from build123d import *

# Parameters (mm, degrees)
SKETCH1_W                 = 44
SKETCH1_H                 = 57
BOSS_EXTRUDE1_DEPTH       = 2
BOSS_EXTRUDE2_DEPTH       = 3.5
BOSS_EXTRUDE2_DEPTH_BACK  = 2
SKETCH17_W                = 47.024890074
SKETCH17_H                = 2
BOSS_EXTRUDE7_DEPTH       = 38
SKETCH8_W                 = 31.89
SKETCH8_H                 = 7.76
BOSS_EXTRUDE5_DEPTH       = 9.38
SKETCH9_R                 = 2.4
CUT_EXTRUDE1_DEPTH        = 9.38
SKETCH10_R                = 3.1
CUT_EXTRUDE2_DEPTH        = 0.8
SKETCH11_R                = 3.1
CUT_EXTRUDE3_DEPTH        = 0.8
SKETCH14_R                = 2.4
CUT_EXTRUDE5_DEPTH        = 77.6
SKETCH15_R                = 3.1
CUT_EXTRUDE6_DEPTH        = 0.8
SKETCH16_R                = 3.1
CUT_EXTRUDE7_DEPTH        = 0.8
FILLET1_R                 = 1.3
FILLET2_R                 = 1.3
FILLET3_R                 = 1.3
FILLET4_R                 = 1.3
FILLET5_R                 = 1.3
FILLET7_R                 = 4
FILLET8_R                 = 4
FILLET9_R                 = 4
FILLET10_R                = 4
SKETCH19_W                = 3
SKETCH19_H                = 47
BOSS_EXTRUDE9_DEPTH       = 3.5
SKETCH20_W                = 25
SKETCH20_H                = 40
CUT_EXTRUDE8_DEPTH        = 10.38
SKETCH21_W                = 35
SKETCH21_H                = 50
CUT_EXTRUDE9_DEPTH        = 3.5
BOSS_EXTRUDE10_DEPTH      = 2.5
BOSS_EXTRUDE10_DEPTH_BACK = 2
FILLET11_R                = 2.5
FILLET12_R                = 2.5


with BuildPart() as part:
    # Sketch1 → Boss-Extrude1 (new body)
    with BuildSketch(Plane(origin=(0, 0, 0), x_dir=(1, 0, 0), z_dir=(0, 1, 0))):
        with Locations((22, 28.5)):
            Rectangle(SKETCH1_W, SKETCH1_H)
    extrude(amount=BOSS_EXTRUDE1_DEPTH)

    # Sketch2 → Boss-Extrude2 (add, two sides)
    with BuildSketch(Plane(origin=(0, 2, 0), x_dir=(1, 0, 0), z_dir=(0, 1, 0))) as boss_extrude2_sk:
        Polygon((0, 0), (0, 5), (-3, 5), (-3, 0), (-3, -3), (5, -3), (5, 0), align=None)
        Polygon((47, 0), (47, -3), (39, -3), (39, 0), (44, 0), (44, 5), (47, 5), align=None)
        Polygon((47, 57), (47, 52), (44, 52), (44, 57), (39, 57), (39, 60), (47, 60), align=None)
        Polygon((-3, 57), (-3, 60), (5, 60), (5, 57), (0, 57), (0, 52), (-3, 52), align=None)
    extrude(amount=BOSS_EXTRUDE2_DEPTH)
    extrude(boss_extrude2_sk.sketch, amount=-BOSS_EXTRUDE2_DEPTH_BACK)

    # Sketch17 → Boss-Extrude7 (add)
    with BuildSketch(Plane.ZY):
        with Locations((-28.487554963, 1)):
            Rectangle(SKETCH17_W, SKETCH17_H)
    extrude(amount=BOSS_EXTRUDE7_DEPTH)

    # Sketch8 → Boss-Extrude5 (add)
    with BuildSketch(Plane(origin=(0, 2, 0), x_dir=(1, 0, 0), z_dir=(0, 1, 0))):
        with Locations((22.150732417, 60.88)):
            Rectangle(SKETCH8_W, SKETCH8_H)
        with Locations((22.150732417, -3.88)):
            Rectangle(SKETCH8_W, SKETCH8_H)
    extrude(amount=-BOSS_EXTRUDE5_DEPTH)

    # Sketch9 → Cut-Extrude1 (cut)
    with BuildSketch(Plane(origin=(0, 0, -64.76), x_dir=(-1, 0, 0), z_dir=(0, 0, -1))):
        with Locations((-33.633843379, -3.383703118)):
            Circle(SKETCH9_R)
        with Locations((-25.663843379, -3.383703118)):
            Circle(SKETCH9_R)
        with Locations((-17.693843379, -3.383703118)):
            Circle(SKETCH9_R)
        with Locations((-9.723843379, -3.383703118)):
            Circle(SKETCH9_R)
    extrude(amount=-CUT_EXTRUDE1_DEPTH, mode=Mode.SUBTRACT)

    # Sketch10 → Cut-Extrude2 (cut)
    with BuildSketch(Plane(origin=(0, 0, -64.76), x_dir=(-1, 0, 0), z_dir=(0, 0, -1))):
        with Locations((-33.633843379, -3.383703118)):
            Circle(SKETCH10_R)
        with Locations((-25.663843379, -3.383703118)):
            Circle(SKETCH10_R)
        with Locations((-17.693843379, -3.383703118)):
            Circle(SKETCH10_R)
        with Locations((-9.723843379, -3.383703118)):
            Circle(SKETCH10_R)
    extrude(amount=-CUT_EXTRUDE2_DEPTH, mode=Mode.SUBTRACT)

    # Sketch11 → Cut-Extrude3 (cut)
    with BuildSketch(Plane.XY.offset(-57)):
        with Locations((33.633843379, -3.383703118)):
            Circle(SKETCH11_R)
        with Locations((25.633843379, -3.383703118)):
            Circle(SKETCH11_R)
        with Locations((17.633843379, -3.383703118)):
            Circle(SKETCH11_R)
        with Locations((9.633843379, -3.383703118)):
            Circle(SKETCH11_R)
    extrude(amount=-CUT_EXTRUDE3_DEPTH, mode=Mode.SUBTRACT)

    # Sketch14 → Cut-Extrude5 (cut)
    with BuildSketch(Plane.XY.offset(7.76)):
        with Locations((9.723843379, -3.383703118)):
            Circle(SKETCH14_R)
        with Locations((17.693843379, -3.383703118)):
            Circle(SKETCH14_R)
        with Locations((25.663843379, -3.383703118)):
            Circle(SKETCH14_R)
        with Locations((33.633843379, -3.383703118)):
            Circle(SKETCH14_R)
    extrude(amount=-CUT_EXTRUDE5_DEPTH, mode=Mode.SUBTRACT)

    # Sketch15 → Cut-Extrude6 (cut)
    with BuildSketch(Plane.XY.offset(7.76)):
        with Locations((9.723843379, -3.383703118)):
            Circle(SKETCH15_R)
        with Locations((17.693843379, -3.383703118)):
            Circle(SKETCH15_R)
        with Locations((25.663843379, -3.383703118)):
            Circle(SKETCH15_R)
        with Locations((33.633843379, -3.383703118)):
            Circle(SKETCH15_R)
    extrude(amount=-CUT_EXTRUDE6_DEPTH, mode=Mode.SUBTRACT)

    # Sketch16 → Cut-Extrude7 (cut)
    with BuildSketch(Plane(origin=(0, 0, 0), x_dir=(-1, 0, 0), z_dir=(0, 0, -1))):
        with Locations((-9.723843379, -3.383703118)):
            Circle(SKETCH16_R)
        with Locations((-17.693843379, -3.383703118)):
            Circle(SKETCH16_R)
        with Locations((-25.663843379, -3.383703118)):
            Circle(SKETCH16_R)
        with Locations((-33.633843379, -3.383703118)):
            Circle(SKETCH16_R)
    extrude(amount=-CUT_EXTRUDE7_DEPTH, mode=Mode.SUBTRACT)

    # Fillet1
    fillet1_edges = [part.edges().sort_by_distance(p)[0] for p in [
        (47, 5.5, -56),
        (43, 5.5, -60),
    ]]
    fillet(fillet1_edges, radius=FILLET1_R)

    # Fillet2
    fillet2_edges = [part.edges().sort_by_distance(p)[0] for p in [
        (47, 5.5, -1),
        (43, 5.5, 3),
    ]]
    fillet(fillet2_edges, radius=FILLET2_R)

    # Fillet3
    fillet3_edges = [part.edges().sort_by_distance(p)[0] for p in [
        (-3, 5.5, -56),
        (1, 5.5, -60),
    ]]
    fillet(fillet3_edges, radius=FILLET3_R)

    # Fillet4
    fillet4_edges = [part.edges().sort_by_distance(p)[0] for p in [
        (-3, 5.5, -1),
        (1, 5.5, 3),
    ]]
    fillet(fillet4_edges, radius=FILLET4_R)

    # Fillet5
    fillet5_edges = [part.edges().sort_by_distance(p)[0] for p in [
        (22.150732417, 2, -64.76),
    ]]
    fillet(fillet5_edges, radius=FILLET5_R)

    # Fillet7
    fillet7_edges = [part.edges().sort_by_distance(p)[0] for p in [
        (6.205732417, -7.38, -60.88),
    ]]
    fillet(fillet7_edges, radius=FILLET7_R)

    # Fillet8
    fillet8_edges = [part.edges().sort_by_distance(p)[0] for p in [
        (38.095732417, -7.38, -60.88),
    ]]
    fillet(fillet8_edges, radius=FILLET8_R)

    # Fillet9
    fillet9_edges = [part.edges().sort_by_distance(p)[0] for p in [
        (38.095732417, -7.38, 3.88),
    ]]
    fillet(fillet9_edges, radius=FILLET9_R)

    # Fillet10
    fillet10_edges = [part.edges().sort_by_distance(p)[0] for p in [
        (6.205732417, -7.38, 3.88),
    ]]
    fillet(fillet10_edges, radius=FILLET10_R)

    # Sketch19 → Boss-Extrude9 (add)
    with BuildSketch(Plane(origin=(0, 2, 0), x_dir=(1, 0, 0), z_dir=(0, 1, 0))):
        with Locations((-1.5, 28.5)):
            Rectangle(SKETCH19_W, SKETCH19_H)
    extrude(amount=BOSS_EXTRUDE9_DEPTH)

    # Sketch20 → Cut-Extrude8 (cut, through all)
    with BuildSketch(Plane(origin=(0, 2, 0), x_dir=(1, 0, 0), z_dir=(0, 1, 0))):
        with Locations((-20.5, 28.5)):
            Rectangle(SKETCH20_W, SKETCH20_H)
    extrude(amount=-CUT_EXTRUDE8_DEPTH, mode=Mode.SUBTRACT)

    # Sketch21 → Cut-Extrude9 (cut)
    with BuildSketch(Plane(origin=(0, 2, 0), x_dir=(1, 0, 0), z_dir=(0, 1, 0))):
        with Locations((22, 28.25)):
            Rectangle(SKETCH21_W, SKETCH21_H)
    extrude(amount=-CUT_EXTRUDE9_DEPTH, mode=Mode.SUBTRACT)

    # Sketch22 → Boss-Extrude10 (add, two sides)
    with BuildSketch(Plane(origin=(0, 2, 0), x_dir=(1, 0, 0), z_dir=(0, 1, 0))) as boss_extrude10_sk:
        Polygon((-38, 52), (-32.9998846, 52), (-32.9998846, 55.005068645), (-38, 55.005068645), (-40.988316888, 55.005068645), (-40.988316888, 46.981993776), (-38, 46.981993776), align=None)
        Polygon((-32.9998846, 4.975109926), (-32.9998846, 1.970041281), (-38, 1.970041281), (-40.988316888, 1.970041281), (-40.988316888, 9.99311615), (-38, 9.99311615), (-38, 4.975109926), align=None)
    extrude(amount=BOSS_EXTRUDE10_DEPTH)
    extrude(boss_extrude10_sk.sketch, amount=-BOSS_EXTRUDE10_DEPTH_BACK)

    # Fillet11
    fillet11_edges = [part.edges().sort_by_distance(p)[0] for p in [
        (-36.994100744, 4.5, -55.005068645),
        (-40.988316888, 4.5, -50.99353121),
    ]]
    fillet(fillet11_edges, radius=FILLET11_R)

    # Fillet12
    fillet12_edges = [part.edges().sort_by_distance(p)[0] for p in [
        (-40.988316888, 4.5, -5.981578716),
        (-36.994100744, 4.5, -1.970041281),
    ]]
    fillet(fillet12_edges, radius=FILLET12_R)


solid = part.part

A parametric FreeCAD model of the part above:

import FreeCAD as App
import Part
import Sketcher
from FreeCAD import Vector
Q = App.Units.Quantity


def edges_at(feature, points):
    """Names of the edges that pass closest to the given points."""
    edges = feature.Shape.Edges
    near = lambda p: min(range(len(edges)), key=lambda i: edges[i].distToShape(Part.Vertex(*p))[0])
    return sorted({f"Edge{near(p) + 1}" for p in points})


def add_polygon(sketch, points):
    """Adds a closed chain of lines whose ends are joined by coincident constraints."""
    first, n = sketch.GeometryCount, len(points)
    for a, b in zip(points, points[1:] + points[:1]):
        sketch.addGeometry(Part.LineSegment(App.Vector(*a, 0), App.Vector(*b, 0)), False)
    for i in range(n):
        sketch.addConstraint(Sketcher.Constraint("Coincident", first + i, 2, first + (i + 1) % n, 1))

doc = App.newDocument("Part")
body = doc.addObject("PartDesign::Body", "Body")

# Sketch on XZ plane
sketch1 = body.newObject("Sketcher::SketchObject", "Sketch")
sketch1.AttachmentSupport = (doc.getObject("XZ_Plane"), [""])
sketch1.MapMode = "FlatFace"
add_polygon(sketch1, [(0, -57), (0, 0), (44, 0), (44, -57)])  # lines 0-3
sketch1.addConstraint(Sketcher.Constraint("Vertical", 0))
sketch1.addConstraint(Sketcher.Constraint("Horizontal", 1))
sketch1.addConstraint(Sketcher.Constraint("Vertical", 2))
sketch1.addConstraint(Sketcher.Constraint("Horizontal", 3))
sketch1.addConstraint(Sketcher.Constraint("Coincident", 0, 2, -1, 1))
sketch1.addConstraint(Sketcher.Constraint("DistanceX", 1, 1, 1, 2, Q("44 mm")))
sketch1.addConstraint(Sketcher.Constraint("DistanceY", 0, 1, 0, 2, Q("57 mm")))
pad1 = body.newObject("PartDesign::Pad", "Pad")
pad1.Profile = sketch1
pad1.Length = 2
pad1.Reversed = True

# Sketch on XZ plane
sketch2 = body.newObject("Sketcher::SketchObject", "Sketch001")
sketch2.AttachmentSupport = (doc.getObject("XZ_Plane"), [""])
sketch2.MapMode = "FlatFace"
sketch2.AttachmentOffset = App.Placement(Vector(0, 0, -2), App.Rotation())
add_polygon(sketch2, [(0, 0), (0, -5), (-3, -5), (-3, 3), (5, 3), (5, 0)])  # lines 0-5
add_polygon(sketch2, [(47, 3), (47, -5), (44, -5), (44, 0), (39, 0), (39, 3)])  # lines 6-11
add_polygon(sketch2, [(47, -52), (47, -60), (39, -60), (39, -57), (44, -57), (44, -52)])  # lines 12-17
add_polygon(sketch2, [(-3, -60), (-3, -52), (0, -52), (0, -57), (5, -57), (5, -60)])  # lines 18-23
sketch2.addConstraint(Sketcher.Constraint("Vertical", 0))
sketch2.addConstraint(Sketcher.Constraint("Horizontal", 1))
sketch2.addConstraint(Sketcher.Constraint("Vertical", 2))
sketch2.addConstraint(Sketcher.Constraint("Horizontal", 3))
sketch2.addConstraint(Sketcher.Constraint("Vertical", 4))
sketch2.addConstraint(Sketcher.Constraint("Horizontal", 5))
sketch2.addConstraint(Sketcher.Constraint("Vertical", 6))
sketch2.addConstraint(Sketcher.Constraint("Horizontal", 7))
sketch2.addConstraint(Sketcher.Constraint("Vertical", 8))
sketch2.addConstraint(Sketcher.Constraint("Horizontal", 9))
sketch2.addConstraint(Sketcher.Constraint("Vertical", 10))
sketch2.addConstraint(Sketcher.Constraint("Horizontal", 11))
sketch2.addConstraint(Sketcher.Constraint("Vertical", 12))
sketch2.addConstraint(Sketcher.Constraint("Horizontal", 13))
sketch2.addConstraint(Sketcher.Constraint("Vertical", 14))
sketch2.addConstraint(Sketcher.Constraint("Horizontal", 15))
sketch2.addConstraint(Sketcher.Constraint("Vertical", 16))
sketch2.addConstraint(Sketcher.Constraint("Horizontal", 17))
sketch2.addConstraint(Sketcher.Constraint("Vertical", 18))
sketch2.addConstraint(Sketcher.Constraint("Horizontal", 19))
sketch2.addConstraint(Sketcher.Constraint("Vertical", 20))
sketch2.addConstraint(Sketcher.Constraint("Horizontal", 21))
sketch2.addConstraint(Sketcher.Constraint("Vertical", 22))
sketch2.addConstraint(Sketcher.Constraint("Horizontal", 23))
sketch2.addConstraint(Sketcher.Constraint("Coincident", 5, 2, -1, 1))
sketch2.addConstraint(Sketcher.Constraint("PointOnObject", 8, 2, -1))
sketch2.addConstraint(Sketcher.Constraint("PointOnObject", 19, 2, -2))
sketch2.addConstraint(Sketcher.Constraint("Horizontal", 1, 2, 6, 2))
sketch2.addConstraint(Sketcher.Constraint("Horizontal", 3, 2, 10, 2))
sketch2.addConstraint(Sketcher.Constraint("Horizontal", 17, 2, 18, 2))
sketch2.addConstraint(Sketcher.Constraint("Horizontal", 15, 2, 20, 2))
sketch2.addConstraint(Sketcher.Constraint("Horizontal", 13, 2, 22, 2))
sketch2.addConstraint(Sketcher.Constraint("Vertical", 11, 2, 12, 2))
sketch2.addConstraint(Sketcher.Constraint("Vertical", 10, 2, 13, 2))
sketch2.addConstraint(Sketcher.Constraint("Vertical", 8, 2, 15, 2))
sketch2.addConstraint(Sketcher.Constraint("Vertical", 2, 2, 18, 2))
sketch2.addConstraint(Sketcher.Constraint("Vertical", 4, 2, 21, 2))
sketch2.addConstraint(Sketcher.Constraint("Equal", 1, 7))
sketch2.addConstraint(Sketcher.Constraint("Equal", 5, 9))
sketch2.addConstraint(Sketcher.Constraint("Equal", 21, 0))
sketch2.addConstraint(Sketcher.Constraint("Equal", 23, 2))
sketch2.addConstraint(Sketcher.Constraint("Equal", 6, 12))
sketch2.addConstraint(Sketcher.Constraint("Equal", 10, 14))
sketch2.addConstraint(Sketcher.Constraint("DistanceX", 1, 2, 1, 1, Q("3 mm")))
sketch2.addConstraint(Sketcher.Constraint("DistanceX", 3, 1, 3, 2, Q("8 mm")))
sketch2.addConstraint(Sketcher.Constraint("DistanceX", -1, 1, 6, 2, Q("47 mm")))
sketch2.addConstraint(Sketcher.Constraint("DistanceY", 12, 2, -1, 1, Q("60 mm")))
pad2 = body.newObject("PartDesign::Pad", "Pad001")
pad2.Profile = sketch2
pad2.Type = "TwoLengths"
pad2.Length = 3.5
pad2.Length2 = 2
pad2.Reversed = True

# Sketch on YZ plane
sketch3 = body.newObject("Sketcher::SketchObject", "Sketch002")
sketch3.AttachmentSupport = (doc.getObject("YZ_Plane"), [""])
sketch3.MapMode = "FlatFace"
add_polygon(sketch3, [(2, -52), (0, -52), (0, -5), (2, -5)])  # lines 0-3
sketch3.addConstraint(Sketcher.Constraint("Horizontal", 0))
sketch3.addConstraint(Sketcher.Constraint("Vertical", 1))
sketch3.addConstraint(Sketcher.Constraint("Horizontal", 2))
sketch3.addConstraint(Sketcher.Constraint("Vertical", 3))
sketch3.addConstraint(Sketcher.Constraint("PointOnObject", 0, 2, -2))
sketch3.addConstraint(Sketcher.Constraint("DistanceX", 0, 2, 0, 1, Q("2 mm")))
sketch3.addConstraint(Sketcher.Constraint("DistanceY", 0, 2, -1, 1, Q("52 mm")))
sketch3.addConstraint(Sketcher.Constraint("DistanceY", 1, 1, 1, 2, Q("47.02489 mm")))
pad3 = body.newObject("PartDesign::Pad", "Pad002")
pad3.Profile = sketch3
pad3.Length = 38
pad3.Reversed = True

# Sketch on XZ plane
sketch4 = body.newObject("Sketcher::SketchObject", "Sketch003")
sketch4.AttachmentSupport = (doc.getObject("XZ_Plane"), [""])
sketch4.MapMode = "FlatFace"
sketch4.AttachmentOffset = App.Placement(Vector(0, 0, -2), App.Rotation())
add_polygon(sketch4, [(6, -65), (6, -57), (38, -57), (38, -65)])  # lines 0-3
add_polygon(sketch4, [(6, 0), (6, 8), (38, 8), (38, 0)])  # lines 4-7
sketch4.addConstraint(Sketcher.Constraint("Vertical", 0))
sketch4.addConstraint(Sketcher.Constraint("Horizontal", 1))
sketch4.addConstraint(Sketcher.Constraint("Vertical", 2))
sketch4.addConstraint(Sketcher.Constraint("Horizontal", 3))
sketch4.addConstraint(Sketcher.Constraint("Vertical", 4))
sketch4.addConstraint(Sketcher.Constraint("Horizontal", 5))
sketch4.addConstraint(Sketcher.Constraint("Vertical", 6))
sketch4.addConstraint(Sketcher.Constraint("Horizontal", 7))
sketch4.addConstraint(Sketcher.Constraint("PointOnObject", 6, 2, -1))
sketch4.addConstraint(Sketcher.Constraint("Vertical", 3, 2, 4, 2))
sketch4.addConstraint(Sketcher.Constraint("Vertical", 2, 2, 5, 2))
sketch4.addConstraint(Sketcher.Constraint("Equal", 2, 4))
sketch4.addConstraint(Sketcher.Constraint("DistanceY", 0, 2, -1, 1, Q("57 mm")))
sketch4.addConstraint(Sketcher.Constraint("DistanceX", 1, 1, 1, 2, Q("31.89 mm")))
sketch4.addConstraint(Sketcher.Constraint("DistanceY", 0, 1, 0, 2, Q("7.76 mm")))
sketch4.addConstraint(Sketcher.Constraint("DistanceX", -1, 1, 0, 2, Q("6.205732 mm")))
pad4 = body.newObject("PartDesign::Pad", "Pad003")
pad4.Profile = sketch4
pad4.Length = 9.38

# Sketch on XY plane
sketch5 = body.newObject("Sketcher::SketchObject", "Sketch004")
sketch5.AttachmentSupport = (doc.getObject("XY_Plane"), [""])
sketch5.MapMode = "FlatFace"
sketch5.AttachmentOffset = App.Placement(Vector(0, 0, -64.76), App.Rotation())
sketch5.addGeometry(Part.Circle(Vector(33.6, -3.4, 0), Vector(0, 0, 1), 2.4), False)
sketch5.addGeometry(Part.Circle(Vector(25.7, -3.4, 0), Vector(0, 0, 1), 2.4), False)
sketch5.addGeometry(Part.Circle(Vector(17.7, -3.4, 0), Vector(0, 0, 1), 2.4), False)
sketch5.addGeometry(Part.Circle(Vector(9.7, -3.4, 0), Vector(0, 0, 1), 2.4), False)
sketch5.addConstraint(Sketcher.Constraint("Equal", 0, 1))
sketch5.addConstraint(Sketcher.Constraint("Equal", 1, 2))
sketch5.addConstraint(Sketcher.Constraint("Equal", 2, 3))
sketch5.addConstraint(Sketcher.Constraint("Horizontal", 0, 3, 1, 3))
sketch5.addConstraint(Sketcher.Constraint("Horizontal", 1, 3, 2, 3))
sketch5.addConstraint(Sketcher.Constraint("Horizontal", 2, 3, 3, 3))
sketch5.addConstraint(Sketcher.Constraint("Diameter", 0, Q("4.8 mm")))
sketch5.addConstraint(Sketcher.Constraint("DistanceX", 1, 3, 0, 3, Q("7.97 mm")))
sketch5.addConstraint(Sketcher.Constraint("DistanceX", 2, 3, 1, 3, Q("7.97 mm")))
sketch5.addConstraint(Sketcher.Constraint("DistanceX", 3, 3, 2, 3, Q("7.97 mm")))
sketch5.addConstraint(Sketcher.Constraint("DistanceX", -1, 1, 0, 3, Q("33.633843 mm")))
sketch5.addConstraint(Sketcher.Constraint("DistanceY", 0, 3, -1, 1, Q("3.383703 mm")))
pocket1 = body.newObject("PartDesign::Pocket", "Pocket")
pocket1.Profile = sketch5
pocket1.Length = 9.38
pocket1.Reversed = True

# Sketch on XY plane
sketch6 = body.newObject("Sketcher::SketchObject", "Sketch005")
sketch6.AttachmentSupport = (doc.getObject("XY_Plane"), [""])
sketch6.MapMode = "FlatFace"
sketch6.AttachmentOffset = App.Placement(Vector(0, 0, -64.76), App.Rotation())
sketch6.addGeometry(Part.Circle(Vector(33.6, -3.4, 0), Vector(0, 0, 1), 3.1), False)
sketch6.addGeometry(Part.Circle(Vector(25.7, -3.4, 0), Vector(0, 0, 1), 3.1), False)
sketch6.addGeometry(Part.Circle(Vector(17.7, -3.4, 0), Vector(0, 0, 1), 3.1), False)
sketch6.addGeometry(Part.Circle(Vector(9.7, -3.4, 0), Vector(0, 0, 1), 3.1), False)
sketch6.addConstraint(Sketcher.Constraint("Equal", 0, 1))
sketch6.addConstraint(Sketcher.Constraint("Equal", 1, 2))
sketch6.addConstraint(Sketcher.Constraint("Equal", 2, 3))
sketch6.addConstraint(Sketcher.Constraint("Horizontal", 0, 3, 1, 3))
sketch6.addConstraint(Sketcher.Constraint("Horizontal", 1, 3, 2, 3))
sketch6.addConstraint(Sketcher.Constraint("Horizontal", 2, 3, 3, 3))
sketch6.addConstraint(Sketcher.Constraint("Diameter", 0, Q("6.2 mm")))
sketch6.addConstraint(Sketcher.Constraint("DistanceX", 1, 3, 0, 3, Q("7.97 mm")))
sketch6.addConstraint(Sketcher.Constraint("DistanceX", 2, 3, 1, 3, Q("7.97 mm")))
sketch6.addConstraint(Sketcher.Constraint("DistanceX", 3, 3, 2, 3, Q("7.97 mm")))
sketch6.addConstraint(Sketcher.Constraint("DistanceX", -1, 1, 0, 3, Q("33.633843 mm")))
sketch6.addConstraint(Sketcher.Constraint("DistanceY", 0, 3, -1, 1, Q("3.383703 mm")))
pocket2 = body.newObject("PartDesign::Pocket", "Pocket001")
pocket2.Profile = sketch6
pocket2.Length = 0.8
pocket2.Reversed = True

# Sketch on XY plane
sketch7 = body.newObject("Sketcher::SketchObject", "Sketch006")
sketch7.AttachmentSupport = (doc.getObject("XY_Plane"), [""])
sketch7.MapMode = "FlatFace"
sketch7.AttachmentOffset = App.Placement(Vector(0, 0, -57), App.Rotation())
sketch7.addGeometry(Part.Circle(Vector(33.6, -3.4, 0), Vector(0, 0, 1), 3.1), False)
sketch7.addGeometry(Part.Circle(Vector(25.6, -3.4, 0), Vector(0, 0, 1), 3.1), False)
sketch7.addGeometry(Part.Circle(Vector(17.6, -3.4, 0), Vector(0, 0, 1), 3.1), False)
sketch7.addGeometry(Part.Circle(Vector(9.6, -3.4, 0), Vector(0, 0, 1), 3.1), False)
sketch7.addConstraint(Sketcher.Constraint("Equal", 0, 1))
sketch7.addConstraint(Sketcher.Constraint("Equal", 1, 2))
sketch7.addConstraint(Sketcher.Constraint("Equal", 2, 3))
sketch7.addConstraint(Sketcher.Constraint("Horizontal", 0, 3, 1, 3))
sketch7.addConstraint(Sketcher.Constraint("Horizontal", 1, 3, 2, 3))
sketch7.addConstraint(Sketcher.Constraint("Horizontal", 2, 3, 3, 3))
sketch7.addConstraint(Sketcher.Constraint("Diameter", 0, Q("6.2 mm")))
sketch7.addConstraint(Sketcher.Constraint("DistanceX", 1, 3, 0, 3, Q("8 mm")))
sketch7.addConstraint(Sketcher.Constraint("DistanceX", 2, 3, 1, 3, Q("8 mm")))
sketch7.addConstraint(Sketcher.Constraint("DistanceX", 3, 3, 2, 3, Q("8 mm")))
sketch7.addConstraint(Sketcher.Constraint("DistanceX", -1, 1, 0, 3, Q("33.633843 mm")))
sketch7.addConstraint(Sketcher.Constraint("DistanceY", 0, 3, -1, 1, Q("3.383703 mm")))
pocket3 = body.newObject("PartDesign::Pocket", "Pocket002")
pocket3.Profile = sketch7
pocket3.Length = 0.8

# Sketch on XY plane
sketch8 = body.newObject("Sketcher::SketchObject", "Sketch007")
sketch8.AttachmentSupport = (doc.getObject("XY_Plane"), [""])
sketch8.MapMode = "FlatFace"
sketch8.AttachmentOffset = App.Placement(Vector(0, 0, 7.76), App.Rotation())
sketch8.addGeometry(Part.Circle(Vector(9.7, -3.4, 0), Vector(0, 0, 1), 2.4), False)
sketch8.addGeometry(Part.Circle(Vector(17.7, -3.4, 0), Vector(0, 0, 1), 2.4), False)
sketch8.addGeometry(Part.Circle(Vector(25.7, -3.4, 0), Vector(0, 0, 1), 2.4), False)
sketch8.addGeometry(Part.Circle(Vector(33.6, -3.4, 0), Vector(0, 0, 1), 2.4), False)
sketch8.addConstraint(Sketcher.Constraint("Equal", 0, 1))
sketch8.addConstraint(Sketcher.Constraint("Equal", 1, 2))
sketch8.addConstraint(Sketcher.Constraint("Equal", 2, 3))
sketch8.addConstraint(Sketcher.Constraint("Horizontal", 0, 3, 1, 3))
sketch8.addConstraint(Sketcher.Constraint("Horizontal", 1, 3, 2, 3))
sketch8.addConstraint(Sketcher.Constraint("Horizontal", 2, 3, 3, 3))
sketch8.addConstraint(Sketcher.Constraint("Diameter", 0, Q("4.8 mm")))
sketch8.addConstraint(Sketcher.Constraint("DistanceX", 0, 3, 1, 3, Q("7.97 mm")))
sketch8.addConstraint(Sketcher.Constraint("DistanceX", 1, 3, 2, 3, Q("7.97 mm")))
sketch8.addConstraint(Sketcher.Constraint("DistanceX", 2, 3, 3, 3, Q("7.97 mm")))
sketch8.addConstraint(Sketcher.Constraint("DistanceX", -1, 1, 0, 3, Q("9.723843 mm")))
sketch8.addConstraint(Sketcher.Constraint("DistanceY", 0, 3, -1, 1, Q("3.383703 mm")))
pocket4 = body.newObject("PartDesign::Pocket", "Pocket003")
pocket4.Profile = sketch8
pocket4.Length = 77.6

# Sketch on XY plane
sketch9 = body.newObject("Sketcher::SketchObject", "Sketch008")
sketch9.AttachmentSupport = (doc.getObject("XY_Plane"), [""])
sketch9.MapMode = "FlatFace"
sketch9.AttachmentOffset = App.Placement(Vector(0, 0, 7.76), App.Rotation())
sketch9.addGeometry(Part.Circle(Vector(9.7, -3.4, 0), Vector(0, 0, 1), 3.1), False)
sketch9.addGeometry(Part.Circle(Vector(17.7, -3.4, 0), Vector(0, 0, 1), 3.1), False)
sketch9.addGeometry(Part.Circle(Vector(25.7, -3.4, 0), Vector(0, 0, 1), 3.1), False)
sketch9.addGeometry(Part.Circle(Vector(33.6, -3.4, 0), Vector(0, 0, 1), 3.1), False)
sketch9.addConstraint(Sketcher.Constraint("Equal", 0, 1))
sketch9.addConstraint(Sketcher.Constraint("Equal", 1, 2))
sketch9.addConstraint(Sketcher.Constraint("Equal", 2, 3))
sketch9.addConstraint(Sketcher.Constraint("Horizontal", 0, 3, 1, 3))
sketch9.addConstraint(Sketcher.Constraint("Horizontal", 1, 3, 2, 3))
sketch9.addConstraint(Sketcher.Constraint("Horizontal", 2, 3, 3, 3))
sketch9.addConstraint(Sketcher.Constraint("Diameter", 0, Q("6.2 mm")))
sketch9.addConstraint(Sketcher.Constraint("DistanceX", 0, 3, 1, 3, Q("7.97 mm")))
sketch9.addConstraint(Sketcher.Constraint("DistanceX", 1, 3, 2, 3, Q("7.97 mm")))
sketch9.addConstraint(Sketcher.Constraint("DistanceX", 2, 3, 3, 3, Q("7.97 mm")))
sketch9.addConstraint(Sketcher.Constraint("DistanceX", -1, 1, 0, 3, Q("9.723843 mm")))
sketch9.addConstraint(Sketcher.Constraint("DistanceY", 0, 3, -1, 1, Q("3.383703 mm")))
pocket5 = body.newObject("PartDesign::Pocket", "Pocket004")
pocket5.Profile = sketch9
pocket5.Length = 0.8

# Sketch on XY plane
sketch10 = body.newObject("Sketcher::SketchObject", "Sketch009")
sketch10.AttachmentSupport = (doc.getObject("XY_Plane"), [""])
sketch10.MapMode = "FlatFace"
sketch10.addGeometry(Part.Circle(Vector(9.7, -3.4, 0), Vector(0, 0, 1), 3.1), False)
sketch10.addGeometry(Part.Circle(Vector(17.7, -3.4, 0), Vector(0, 0, 1), 3.1), False)
sketch10.addGeometry(Part.Circle(Vector(25.7, -3.4, 0), Vector(0, 0, 1), 3.1), False)
sketch10.addGeometry(Part.Circle(Vector(33.6, -3.4, 0), Vector(0, 0, 1), 3.1), False)
sketch10.addConstraint(Sketcher.Constraint("Equal", 0, 1))
sketch10.addConstraint(Sketcher.Constraint("Equal", 1, 2))
sketch10.addConstraint(Sketcher.Constraint("Equal", 2, 3))
sketch10.addConstraint(Sketcher.Constraint("Horizontal", 0, 3, 1, 3))
sketch10.addConstraint(Sketcher.Constraint("Horizontal", 1, 3, 2, 3))
sketch10.addConstraint(Sketcher.Constraint("Horizontal", 2, 3, 3, 3))
sketch10.addConstraint(Sketcher.Constraint("Diameter", 0, Q("6.2 mm")))
sketch10.addConstraint(Sketcher.Constraint("DistanceX", 0, 3, 1, 3, Q("7.97 mm")))
sketch10.addConstraint(Sketcher.Constraint("DistanceX", 1, 3, 2, 3, Q("7.97 mm")))
sketch10.addConstraint(Sketcher.Constraint("DistanceX", 2, 3, 3, 3, Q("7.97 mm")))
sketch10.addConstraint(Sketcher.Constraint("DistanceX", -1, 1, 0, 3, Q("9.723843 mm")))
sketch10.addConstraint(Sketcher.Constraint("DistanceY", 0, 3, -1, 1, Q("3.383703 mm")))
pocket6 = body.newObject("PartDesign::Pocket", "Pocket005")
pocket6.Profile = sketch10
pocket6.Length = 0.8
pocket6.Reversed = True
doc.recompute()

fillet = body.newObject("PartDesign::Fillet", "Fillet")
fillet.Base = (pocket6, edges_at(pocket6, [(47, 5.5, -56), (43, 5.5, -60)]))
fillet.Radius = 1.3
doc.recompute()

fillet2 = body.newObject("PartDesign::Fillet", "Fillet001")
fillet2.Base = (fillet, edges_at(fillet, [(47, 5.5, -1), (43, 5.5, 3)]))
fillet2.Radius = 1.3
doc.recompute()

fillet3 = body.newObject("PartDesign::Fillet", "Fillet002")
fillet3.Base = (fillet2, edges_at(fillet2, [(-3, 5.5, -56), (1, 5.5, -60)]))
fillet3.Radius = 1.3
doc.recompute()

fillet4 = body.newObject("PartDesign::Fillet", "Fillet003")
fillet4.Base = (fillet3, edges_at(fillet3, [(-3, 5.5, -1), (1, 5.5, 3)]))
fillet4.Radius = 1.3
doc.recompute()

fillet5 = body.newObject("PartDesign::Fillet", "Fillet004")
fillet5.Base = (fillet4, edges_at(fillet4, [(22.151, 2, -64.76)]))
fillet5.Radius = 1.3
doc.recompute()

fillet6 = body.newObject("PartDesign::Fillet", "Fillet005")
fillet6.Base = (fillet5, edges_at(fillet5, [(6.206, -7.38, -60.88)]))
fillet6.Radius = 4
doc.recompute()

fillet7 = body.newObject("PartDesign::Fillet", "Fillet006")
fillet7.Base = (fillet6, edges_at(fillet6, [(38.096, -7.38, -60.88)]))
fillet7.Radius = 4
doc.recompute()

fillet8 = body.newObject("PartDesign::Fillet", "Fillet007")
fillet8.Base = (fillet7, edges_at(fillet7, [(38.096, -7.38, 3.88)]))
fillet8.Radius = 4
doc.recompute()

fillet9 = body.newObject("PartDesign::Fillet", "Fillet008")
fillet9.Base = (fillet8, edges_at(fillet8, [(6.206, -7.38, 3.88)]))
fillet9.Radius = 4

# Sketch on XZ plane
sketch11 = body.newObject("Sketcher::SketchObject", "Sketch010")
sketch11.AttachmentSupport = (doc.getObject("XZ_Plane"), [""])
sketch11.MapMode = "FlatFace"
sketch11.AttachmentOffset = App.Placement(Vector(0, 0, -2), App.Rotation())
add_polygon(sketch11, [(-3, -52), (-3, -5), (0, -5), (0, -52)])  # lines 0-3
sketch11.addConstraint(Sketcher.Constraint("Vertical", 0))
sketch11.addConstraint(Sketcher.Constraint("Horizontal", 1))
sketch11.addConstraint(Sketcher.Constraint("Vertical", 2))
sketch11.addConstraint(Sketcher.Constraint("Horizontal", 3))
sketch11.addConstraint(Sketcher.Constraint("PointOnObject", 1, 2, -2))
sketch11.addConstraint(Sketcher.Constraint("DistanceX", 1, 1, 1, 2, Q("3 mm")))
sketch11.addConstraint(Sketcher.Constraint("DistanceY", 0, 1, 0, 2, Q("47 mm")))
sketch11.addConstraint(Sketcher.Constraint("DistanceY", 0, 2, -1, 1, Q("5 mm")))
pad5 = body.newObject("PartDesign::Pad", "Pad004")
pad5.Profile = sketch11
pad5.Length = 3.5
pad5.Reversed = True

# Sketch on XZ plane
sketch12 = body.newObject("Sketcher::SketchObject", "Sketch011")
sketch12.AttachmentSupport = (doc.getObject("XZ_Plane"), [""])
sketch12.MapMode = "FlatFace"
sketch12.AttachmentOffset = App.Placement(Vector(0, 0, -2), App.Rotation())
add_polygon(sketch12, [(-33, -48), (-33, -8), (-8, -8), (-8, -48)])  # lines 0-3
sketch12.addConstraint(Sketcher.Constraint("Vertical", 0))
sketch12.addConstraint(Sketcher.Constraint("Horizontal", 1))
sketch12.addConstraint(Sketcher.Constraint("Vertical", 2))
sketch12.addConstraint(Sketcher.Constraint("Horizontal", 3))
sketch12.addConstraint(Sketcher.Constraint("DistanceX", 1, 1, 1, 2, Q("25 mm")))
sketch12.addConstraint(Sketcher.Constraint("DistanceY", 0, 1, 0, 2, Q("40 mm")))
sketch12.addConstraint(Sketcher.Constraint("DistanceX", 0, 2, -1, 1, Q("33 mm")))
sketch12.addConstraint(Sketcher.Constraint("DistanceY", 0, 2, -1, 1, Q("8.5 mm")))
pocket7 = body.newObject("PartDesign::Pocket", "Pocket006")
pocket7.Profile = sketch12
pocket7.Type = "ThroughAll"
pocket7.Reversed = True

# Sketch on XZ plane
sketch13 = body.newObject("Sketcher::SketchObject", "Sketch012")
sketch13.AttachmentSupport = (doc.getObject("XZ_Plane"), [""])
sketch13.MapMode = "FlatFace"
sketch13.AttachmentOffset = App.Placement(Vector(0, 0, -2), App.Rotation())
add_polygon(sketch13, [(4, -53), (4, -3), (40, -3), (40, -53)])  # lines 0-3
sketch13.addConstraint(Sketcher.Constraint("Vertical", 0))
sketch13.addConstraint(Sketcher.Constraint("Horizontal", 1))
sketch13.addConstraint(Sketcher.Constraint("Vertical", 2))
sketch13.addConstraint(Sketcher.Constraint("Horizontal", 3))
sketch13.addConstraint(Sketcher.Constraint("DistanceX", 1, 1, 1, 2, Q("35 mm")))
sketch13.addConstraint(Sketcher.Constraint("DistanceY", 0, 1, 0, 2, Q("50 mm")))
sketch13.addConstraint(Sketcher.Constraint("DistanceX", -1, 1, 0, 2, Q("4.5 mm")))
sketch13.addConstraint(Sketcher.Constraint("DistanceY", 0, 2, -1, 1, Q("3.25 mm")))
pocket8 = body.newObject("PartDesign::Pocket", "Pocket007")
pocket8.Profile = sketch13
pocket8.Length = 3.5
pocket8.Reversed = True

# Sketch on XZ plane
sketch14 = body.newObject("Sketcher::SketchObject", "Sketch013")
sketch14.AttachmentSupport = (doc.getObject("XZ_Plane"), [""])
sketch14.MapMode = "FlatFace"
sketch14.AttachmentOffset = App.Placement(Vector(0, 0, -2), App.Rotation())
add_polygon(sketch14, [(-38, -52), (-33, -52), (-33, -55), (-41, -55), (-41, -47), (-38, -47)])  # lines 0-5
add_polygon(sketch14, [(-33, -2), (-33, -5), (-38, -5), (-38, -10), (-41, -10), (-41, -2)])  # lines 6-11
sketch14.addConstraint(Sketcher.Constraint("Horizontal", 0))
sketch14.addConstraint(Sketcher.Constraint("Vertical", 1))
sketch14.addConstraint(Sketcher.Constraint("Horizontal", 2))
sketch14.addConstraint(Sketcher.Constraint("Vertical", 3))
sketch14.addConstraint(Sketcher.Constraint("Horizontal", 4))
sketch14.addConstraint(Sketcher.Constraint("Vertical", 5))
sketch14.addConstraint(Sketcher.Constraint("Vertical", 6))
sketch14.addConstraint(Sketcher.Constraint("Horizontal", 7))
sketch14.addConstraint(Sketcher.Constraint("Vertical", 8))
sketch14.addConstraint(Sketcher.Constraint("Horizontal", 9))
sketch14.addConstraint(Sketcher.Constraint("Vertical", 10))
sketch14.addConstraint(Sketcher.Constraint("Horizontal", 11))
sketch14.addConstraint(Sketcher.Constraint("Vertical", 1, 2, 6, 2))
sketch14.addConstraint(Sketcher.Constraint("Vertical", 5, 2, 7, 2))
sketch14.addConstraint(Sketcher.Constraint("Vertical", 3, 2, 9, 2))
sketch14.addConstraint(Sketcher.Constraint("Equal", 1, 6))
sketch14.addConstraint(Sketcher.Constraint("Equal", 5, 8))
sketch14.addConstraint(Sketcher.Constraint("DistanceY", 0, 2, -1, 1, Q("52 mm")))
sketch14.addConstraint(Sketcher.Constraint("DistanceX", 4, 2, -1, 1, Q("38 mm")))
sketch14.addConstraint(Sketcher.Constraint("DistanceY", 1, 2, 1, 1, Q("3.005069 mm")))
sketch14.addConstraint(Sketcher.Constraint("DistanceX", 0, 1, 0, 2, Q("5.000115 mm")))
sketch14.addConstraint(Sketcher.Constraint("DistanceX", 2, 2, 2, 1, Q("7.988432 mm")))
sketch14.addConstraint(Sketcher.Constraint("DistanceY", 3, 1, 3, 2, Q("8.023075 mm")))
sketch14.addConstraint(Sketcher.Constraint("DistanceY", 6, 2, -1, 1, Q("4.97511 mm")))
pad6 = body.newObject("PartDesign::Pad", "Pad005")
pad6.Profile = sketch14
pad6.Type = "TwoLengths"
pad6.Length = 2.5
pad6.Length2 = 2
pad6.Reversed = True
doc.recompute()

fillet10 = body.newObject("PartDesign::Fillet", "Fillet009")
fillet10.Base = (pad6, edges_at(pad6, [(-36.994, 4.5, -55.005), (-40.988, 4.5, -50.994)]))
fillet10.Radius = 2.5
doc.recompute()

fillet11 = body.newObject("PartDesign::Fillet", "Fillet010")
fillet11.Base = (fillet10, edges_at(fillet10, [(-40.988, 4.5, -5.982), (-36.994, 4.5, -1.97)]))
fillet11.Radius = 2.5

doc.recompute()
